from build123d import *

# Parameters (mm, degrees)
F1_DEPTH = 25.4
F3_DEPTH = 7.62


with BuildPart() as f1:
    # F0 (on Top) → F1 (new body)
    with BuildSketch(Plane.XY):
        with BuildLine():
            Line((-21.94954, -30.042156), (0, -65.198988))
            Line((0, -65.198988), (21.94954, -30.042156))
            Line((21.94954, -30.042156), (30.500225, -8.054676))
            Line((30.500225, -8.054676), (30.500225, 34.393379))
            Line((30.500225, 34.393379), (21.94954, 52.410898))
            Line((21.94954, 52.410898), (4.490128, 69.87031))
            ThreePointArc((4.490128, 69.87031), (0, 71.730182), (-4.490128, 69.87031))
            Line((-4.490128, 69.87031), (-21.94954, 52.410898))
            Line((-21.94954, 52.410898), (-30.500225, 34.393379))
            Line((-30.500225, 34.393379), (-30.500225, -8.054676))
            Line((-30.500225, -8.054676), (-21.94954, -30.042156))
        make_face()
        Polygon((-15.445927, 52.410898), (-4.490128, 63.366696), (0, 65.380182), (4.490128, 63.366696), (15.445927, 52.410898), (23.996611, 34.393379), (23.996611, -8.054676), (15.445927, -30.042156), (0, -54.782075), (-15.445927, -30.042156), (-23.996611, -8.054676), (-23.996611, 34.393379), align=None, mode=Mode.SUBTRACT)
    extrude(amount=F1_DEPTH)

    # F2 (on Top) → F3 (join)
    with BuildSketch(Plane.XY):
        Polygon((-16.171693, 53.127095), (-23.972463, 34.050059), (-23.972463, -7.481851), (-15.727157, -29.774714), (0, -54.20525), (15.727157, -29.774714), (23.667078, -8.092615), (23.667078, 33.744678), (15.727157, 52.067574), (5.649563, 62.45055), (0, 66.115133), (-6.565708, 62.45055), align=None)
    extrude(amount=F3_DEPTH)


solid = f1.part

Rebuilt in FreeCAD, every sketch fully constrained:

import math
import FreeCAD as App
import Part
import Sketcher
Q = App.Units.Quantity


def add_polygon(sketch, points):
    """Adds a closed chain of lines whose ends are joined by coincident constraints."""
    first, n = sketch.GeometryCount, len(points)
    for a, b in zip(points, points[1:] + points[:1]):
        sketch.addGeometry(Part.LineSegment(App.Vector(*a, 0), App.Vector(*b, 0)), False)
    for i in range(n):
        sketch.addConstraint(Sketcher.Constraint("Coincident", first + i, 2, first + (i + 1) % n, 1))

doc = App.newDocument("Part")
params = doc.addObject("Spreadsheet::Sheet", "Params")
for row, (alias, value) in enumerate([
    ("sketch1_radius", "0.25 in"),
    ("pad1_length", "1 in"),
    ("pad2_length", "0.3 in"),
], start=1):
    params.set(f"A{row}", alias)
    params.set(f"B{row}", "=" + value)
    params.setAlias(f"B{row}", alias)

body = doc.addObject("PartDesign::Body", "Body")

sketch1 = body.newObject("Sketcher::SketchObject", "Sketch")
sketch1.AttachmentSupport = (doc.getObject("XY_Plane"), [""])
sketch1.MapMode = "FlatFace"
sketch1.addGeometry(Part.LineSegment(App.Vector(-21.9, -30, 0), App.Vector(0, -65.2, 0)), False)
sketch1.addGeometry(Part.LineSegment(App.Vector(0, -65.2, 0), App.Vector(21.9, -30, 0)), False)
sketch1.addGeometry(Part.LineSegment(App.Vector(21.9, -30, 0), App.Vector(30.5, -8.1, 0)), False)
sketch1.addGeometry(Part.LineSegment(App.Vector(30.5, -8.1, 0), App.Vector(30.5, 34.4, 0)), False)
sketch1.addGeometry(Part.LineSegment(App.Vector(30.5, 34.4, 0), App.Vector(21.9, 52.4, 0)), False)
sketch1.addGeometry(Part.LineSegment(App.Vector(21.9, 52.4, 0), App.Vector(4.5, 69.9, 0)), False)
sketch1.addGeometry(Part.ArcOfCircle(Part.Circle(App.Vector(0, 65.4, 0), App.Vector(0, 0, 1), 6.3), math.radians(45), math.radians(135)), False)
sketch1.addGeometry(Part.LineSegment(App.Vector(-4.5, 69.9, 0), App.Vector(-21.9, 52.4, 0)), False)
sketch1.addGeometry(Part.LineSegment(App.Vector(-21.9, 52.4, 0), App.Vector(-30.5, 34.4, 0)), False)
sketch1.addGeometry(Part.LineSegment(App.Vector(-30.5, 34.4, 0), App.Vector(-30.5, -8.1, 0)), False)
sketch1.addGeometry(Part.LineSegment(App.Vector(-30.5, -8.1, 0), App.Vector(-21.9, -30, 0)), False)
add_polygon(sketch1, [(-24, 34.4), (-15.4, 52.4), (-4.5, 63.4), (0, 65.4), (4.5, 63.4), (15.4, 52.4), (24, 34.4), (24, -8.1), (15.4, -30), (0, -54.8), (-15.4, -30), (-24, -8.1)])
sketch1.addConstraint(Sketcher.Constraint("Coincident", 0, 2, 1, 1))
sketch1.addConstraint(Sketcher.Constraint("Coincident", 1, 2, 2, 1))
sketch1.addConstraint(Sketcher.Constraint("Coincident", 2, 2, 3, 1))
sketch1.addConstraint(Sketcher.Constraint("Coincident", 3, 2, 4, 1))
sketch1.addConstraint(Sketcher.Constraint("Coincident", 4, 2, 5, 1))
sketch1.addConstraint(Sketcher.Constraint("Tangent", 5, 2, 6, 1))
sketch1.addConstraint(Sketcher.Constraint("Tangent", 6, 2, 7, 1))
sketch1.addConstraint(Sketcher.Constraint("Coincident", 7, 2, 8, 1))
sketch1.addConstraint(Sketcher.Constraint("Coincident", 8, 2, 9, 1))
sketch1.addConstraint(Sketcher.Constraint("Coincident", 9, 2, 10, 1))
sketch1.addConstraint(Sketcher.Constraint("Coincident", 10, 2, 0, 1))
sketch1.addConstraint(Sketcher.Constraint("Vertical", 3))
sketch1.addConstraint(Sketcher.Constraint("Vertical", 9))
sketch1.addConstraint(Sketcher.Constraint("Vertical", 17))
sketch1.addConstraint(Sketcher.Constraint("Vertical", 22))
sketch1.addConstraint(Sketcher.Constraint("Coincident", 13, 2, 6, 3))
sketch1.addConstraint(Sketcher.Constraint("Symmetric", 5, 2, 6, 2, -2))
sketch1.addConstraint(Sketcher.Constraint("Symmetric", 3, 2, 8, 2, -2))
sketch1.addConstraint(Sketcher.Constraint("Symmetric", 1, 2, 10, 2, -2))
sketch1.addConstraint(Sketcher.Constraint("Symmetric", 12, 2, 14, 2, -2))
sketch1.addConstraint(Sketcher.Constraint("Symmetric", 11, 2, 15, 2, -2))
sketch1.addConstraint(Sketcher.Constraint("Symmetric", 18, 2, 20, 2, -2))
sketch1.addConstraint(Sketcher.Constraint("Symmetric", 17, 2, 21, 2, -2))
sketch1.addConstraint(Sketcher.Constraint("PointOnObject", 0, 2, -2))
sketch1.addConstraint(Sketcher.Constraint("PointOnObject", 19, 2, -2))
sketch1.addConstraint(Sketcher.Constraint("Perpendicular", 5, 7))
sketch1.addConstraint(Sketcher.Constraint("Parallel", 8, 11))
sketch1.addConstraint(Sketcher.Constraint("Parallel", 7, 12))
sketch1.addConstraint(Sketcher.Constraint("Parallel", 4, 16))
sketch1.addConstraint(Sketcher.Constraint("Parallel", 2, 18))
sketch1.addConstraint(Sketcher.Constraint("Parallel", 1, 19))
sketch1.addConstraint(Sketcher.Constraint("Parallel", 10, 21))
sketch1.addConstraint(Sketcher.Constraint("Horizontal", 4, 2, 7, 2))
sketch1.addConstraint(Sketcher.Constraint("Horizontal", 7, 2, 11, 2))
sketch1.addConstraint(Sketcher.Constraint("Horizontal", 8, 2, 16, 2))
sketch1.addConstraint(Sketcher.Constraint("Horizontal", 9, 2, 17, 2))
sketch1.addConstraint(Sketcher.Constraint("Horizontal", 10, 2, 18, 2))
sketch1.addConstraint(Sketcher.Constraint("Vertical", 1, 2, 4, 2))
sketch1.addConstraint(Sketcher.Constraint("Vertical", 6, 2, 12, 2))
sketch1.addConstraint(Sketcher.Constraint("Radius", 6, Q("0.25 in")))
sketch1.addConstraint(Sketcher.Constraint("Distance", 5, Q("0.9720999 in")))
sketch1.addConstraint(Sketcher.Constraint("DistanceY", -1, 1, 4, 2, Q("52.410898 mm")))
sketch1.addConstraint(Sketcher.Constraint("DistanceX", 11, 2, 6, 2, Q("10.955799 mm")))
sketch1.addConstraint(Sketcher.Constraint("DistanceX", 8, 2, 11, 2, Q("15.054298 mm")))
sketch1.addConstraint(Sketcher.Constraint("DistanceY", 19, 2, 17, 2, Q("46.727399 mm")))
sketch1.addConstraint(Sketcher.Constraint("Distance", 0, Q("41.446172 mm")))
sketch1.addConstraint(Sketcher.Constraint("Distance", 4, Q("19.94355 mm")))
sketch1.addConstraint(Sketcher.Constraint("DistanceY", 3, 1, 3, 2, Q("42.448055 mm")))
sketch1.setExpression("Constraints[51]", "Params.sketch1_radius")
pad1 = body.newObject("PartDesign::Pad", "Pad")
pad1.Profile = sketch1
pad1.setExpression("Length", "Params.pad1_length")

sketch2 = body.newObject("Sketcher::SketchObject", "Sketch001")
sketch2.AttachmentSupport = (doc.getObject("XY_Plane"), [""])
sketch2.MapMode = "FlatFace"
add_polygon(sketch2, [(-16, 53), (-24, 34), (-24, -7), (-16, -30), (0, -54), (16, -30), (24, -8), (24, 34), (16, 52), (6, 62), (0, 66), (-7, 62)])
sketch2.addConstraint(Sketcher.Constraint("Vertical", 1))
sketch2.addConstraint(Sketcher.Constraint("Vertical", 6))
sketch2.addConstraint(Sketcher.Constraint("Symmetric", 2, 2, 4, 2, -2))
sketch2.addConstraint(Sketcher.Constraint("PointOnObject", 3, 2, -2))
sketch2.addConstraint(Sketcher.Constraint("PointOnObject", 9, 2, -2))
sketch2.addConstraint(Sketcher.Constraint("Perpendicular", 8, 11))
sketch2.addConstraint(Sketcher.Constraint("Horizontal", 8, 2, 10, 2))
sketch2.addConstraint(Sketcher.Constraint("Vertical", 4, 2, 7, 2))
sketch2.addConstraint(Sketcher.Constraint("Distance", 9, Q("6.733998 mm")))
sketch2.addConstraint(Sketcher.Constraint("DistanceY", 1, 2, 1, 1, Q("41.53191 mm")))
sketch2.addConstraint(Sketcher.Constraint("DistanceY", 3, 2, 1, 2, Q("46.723399 mm")))
sketch2.addConstraint(Sketcher.Constraint("DistanceY", 4, 2, 5, 2, Q("21.682099 mm")))
sketch2.addConstraint(Sketcher.Constraint("DistanceY", 1, 2, 8, 2, Q("69.932401 mm")))
sketch2.addConstraint(Sketcher.Constraint("Distance", 0, Q("20.610321 mm")))
sketch2.addConstraint(Sketcher.Constraint("Distance", 2, Q("23.76882 mm")))
sketch2.addConstraint(Sketcher.Constraint("Distance", 8, Q("14.469419 mm")))
sketch2.addConstraint(Sketcher.Constraint("DistanceY", 6, 1, 6, 2, Q("41.837293 mm")))
sketch2.addConstraint(Sketcher.Constraint("DistanceY", -1, 1, 0, 2, Q("34.050059 mm")))
sketch2.addConstraint(Sketcher.Constraint("DistanceX", -1, 1, 5, 2, Q("23.667078 mm")))
sketch2.addConstraint(Sketcher.Constraint("DistanceX", 1, 2, 4, 2, Q("39.69962 mm")))
sketch2.addConstraint(Sketcher.Constraint("DistanceX", 4, 2, 5, 2, Q("7.939921 mm")))
sketch2.addConstraint(Sketcher.Constraint("DistanceY", 5, 2, 7, 2, Q("60.160189 mm")))
sketch2.addConstraint(Sketcher.Constraint("DistanceX", 10, 2, 8, 2, Q("12.215271 mm")))
pad2 = body.newObject("PartDesign::Pad", "Pad001")
pad2.Profile = sketch2
pad2.setExpression("Length", "Params.pad2_length")

doc.recompute()
